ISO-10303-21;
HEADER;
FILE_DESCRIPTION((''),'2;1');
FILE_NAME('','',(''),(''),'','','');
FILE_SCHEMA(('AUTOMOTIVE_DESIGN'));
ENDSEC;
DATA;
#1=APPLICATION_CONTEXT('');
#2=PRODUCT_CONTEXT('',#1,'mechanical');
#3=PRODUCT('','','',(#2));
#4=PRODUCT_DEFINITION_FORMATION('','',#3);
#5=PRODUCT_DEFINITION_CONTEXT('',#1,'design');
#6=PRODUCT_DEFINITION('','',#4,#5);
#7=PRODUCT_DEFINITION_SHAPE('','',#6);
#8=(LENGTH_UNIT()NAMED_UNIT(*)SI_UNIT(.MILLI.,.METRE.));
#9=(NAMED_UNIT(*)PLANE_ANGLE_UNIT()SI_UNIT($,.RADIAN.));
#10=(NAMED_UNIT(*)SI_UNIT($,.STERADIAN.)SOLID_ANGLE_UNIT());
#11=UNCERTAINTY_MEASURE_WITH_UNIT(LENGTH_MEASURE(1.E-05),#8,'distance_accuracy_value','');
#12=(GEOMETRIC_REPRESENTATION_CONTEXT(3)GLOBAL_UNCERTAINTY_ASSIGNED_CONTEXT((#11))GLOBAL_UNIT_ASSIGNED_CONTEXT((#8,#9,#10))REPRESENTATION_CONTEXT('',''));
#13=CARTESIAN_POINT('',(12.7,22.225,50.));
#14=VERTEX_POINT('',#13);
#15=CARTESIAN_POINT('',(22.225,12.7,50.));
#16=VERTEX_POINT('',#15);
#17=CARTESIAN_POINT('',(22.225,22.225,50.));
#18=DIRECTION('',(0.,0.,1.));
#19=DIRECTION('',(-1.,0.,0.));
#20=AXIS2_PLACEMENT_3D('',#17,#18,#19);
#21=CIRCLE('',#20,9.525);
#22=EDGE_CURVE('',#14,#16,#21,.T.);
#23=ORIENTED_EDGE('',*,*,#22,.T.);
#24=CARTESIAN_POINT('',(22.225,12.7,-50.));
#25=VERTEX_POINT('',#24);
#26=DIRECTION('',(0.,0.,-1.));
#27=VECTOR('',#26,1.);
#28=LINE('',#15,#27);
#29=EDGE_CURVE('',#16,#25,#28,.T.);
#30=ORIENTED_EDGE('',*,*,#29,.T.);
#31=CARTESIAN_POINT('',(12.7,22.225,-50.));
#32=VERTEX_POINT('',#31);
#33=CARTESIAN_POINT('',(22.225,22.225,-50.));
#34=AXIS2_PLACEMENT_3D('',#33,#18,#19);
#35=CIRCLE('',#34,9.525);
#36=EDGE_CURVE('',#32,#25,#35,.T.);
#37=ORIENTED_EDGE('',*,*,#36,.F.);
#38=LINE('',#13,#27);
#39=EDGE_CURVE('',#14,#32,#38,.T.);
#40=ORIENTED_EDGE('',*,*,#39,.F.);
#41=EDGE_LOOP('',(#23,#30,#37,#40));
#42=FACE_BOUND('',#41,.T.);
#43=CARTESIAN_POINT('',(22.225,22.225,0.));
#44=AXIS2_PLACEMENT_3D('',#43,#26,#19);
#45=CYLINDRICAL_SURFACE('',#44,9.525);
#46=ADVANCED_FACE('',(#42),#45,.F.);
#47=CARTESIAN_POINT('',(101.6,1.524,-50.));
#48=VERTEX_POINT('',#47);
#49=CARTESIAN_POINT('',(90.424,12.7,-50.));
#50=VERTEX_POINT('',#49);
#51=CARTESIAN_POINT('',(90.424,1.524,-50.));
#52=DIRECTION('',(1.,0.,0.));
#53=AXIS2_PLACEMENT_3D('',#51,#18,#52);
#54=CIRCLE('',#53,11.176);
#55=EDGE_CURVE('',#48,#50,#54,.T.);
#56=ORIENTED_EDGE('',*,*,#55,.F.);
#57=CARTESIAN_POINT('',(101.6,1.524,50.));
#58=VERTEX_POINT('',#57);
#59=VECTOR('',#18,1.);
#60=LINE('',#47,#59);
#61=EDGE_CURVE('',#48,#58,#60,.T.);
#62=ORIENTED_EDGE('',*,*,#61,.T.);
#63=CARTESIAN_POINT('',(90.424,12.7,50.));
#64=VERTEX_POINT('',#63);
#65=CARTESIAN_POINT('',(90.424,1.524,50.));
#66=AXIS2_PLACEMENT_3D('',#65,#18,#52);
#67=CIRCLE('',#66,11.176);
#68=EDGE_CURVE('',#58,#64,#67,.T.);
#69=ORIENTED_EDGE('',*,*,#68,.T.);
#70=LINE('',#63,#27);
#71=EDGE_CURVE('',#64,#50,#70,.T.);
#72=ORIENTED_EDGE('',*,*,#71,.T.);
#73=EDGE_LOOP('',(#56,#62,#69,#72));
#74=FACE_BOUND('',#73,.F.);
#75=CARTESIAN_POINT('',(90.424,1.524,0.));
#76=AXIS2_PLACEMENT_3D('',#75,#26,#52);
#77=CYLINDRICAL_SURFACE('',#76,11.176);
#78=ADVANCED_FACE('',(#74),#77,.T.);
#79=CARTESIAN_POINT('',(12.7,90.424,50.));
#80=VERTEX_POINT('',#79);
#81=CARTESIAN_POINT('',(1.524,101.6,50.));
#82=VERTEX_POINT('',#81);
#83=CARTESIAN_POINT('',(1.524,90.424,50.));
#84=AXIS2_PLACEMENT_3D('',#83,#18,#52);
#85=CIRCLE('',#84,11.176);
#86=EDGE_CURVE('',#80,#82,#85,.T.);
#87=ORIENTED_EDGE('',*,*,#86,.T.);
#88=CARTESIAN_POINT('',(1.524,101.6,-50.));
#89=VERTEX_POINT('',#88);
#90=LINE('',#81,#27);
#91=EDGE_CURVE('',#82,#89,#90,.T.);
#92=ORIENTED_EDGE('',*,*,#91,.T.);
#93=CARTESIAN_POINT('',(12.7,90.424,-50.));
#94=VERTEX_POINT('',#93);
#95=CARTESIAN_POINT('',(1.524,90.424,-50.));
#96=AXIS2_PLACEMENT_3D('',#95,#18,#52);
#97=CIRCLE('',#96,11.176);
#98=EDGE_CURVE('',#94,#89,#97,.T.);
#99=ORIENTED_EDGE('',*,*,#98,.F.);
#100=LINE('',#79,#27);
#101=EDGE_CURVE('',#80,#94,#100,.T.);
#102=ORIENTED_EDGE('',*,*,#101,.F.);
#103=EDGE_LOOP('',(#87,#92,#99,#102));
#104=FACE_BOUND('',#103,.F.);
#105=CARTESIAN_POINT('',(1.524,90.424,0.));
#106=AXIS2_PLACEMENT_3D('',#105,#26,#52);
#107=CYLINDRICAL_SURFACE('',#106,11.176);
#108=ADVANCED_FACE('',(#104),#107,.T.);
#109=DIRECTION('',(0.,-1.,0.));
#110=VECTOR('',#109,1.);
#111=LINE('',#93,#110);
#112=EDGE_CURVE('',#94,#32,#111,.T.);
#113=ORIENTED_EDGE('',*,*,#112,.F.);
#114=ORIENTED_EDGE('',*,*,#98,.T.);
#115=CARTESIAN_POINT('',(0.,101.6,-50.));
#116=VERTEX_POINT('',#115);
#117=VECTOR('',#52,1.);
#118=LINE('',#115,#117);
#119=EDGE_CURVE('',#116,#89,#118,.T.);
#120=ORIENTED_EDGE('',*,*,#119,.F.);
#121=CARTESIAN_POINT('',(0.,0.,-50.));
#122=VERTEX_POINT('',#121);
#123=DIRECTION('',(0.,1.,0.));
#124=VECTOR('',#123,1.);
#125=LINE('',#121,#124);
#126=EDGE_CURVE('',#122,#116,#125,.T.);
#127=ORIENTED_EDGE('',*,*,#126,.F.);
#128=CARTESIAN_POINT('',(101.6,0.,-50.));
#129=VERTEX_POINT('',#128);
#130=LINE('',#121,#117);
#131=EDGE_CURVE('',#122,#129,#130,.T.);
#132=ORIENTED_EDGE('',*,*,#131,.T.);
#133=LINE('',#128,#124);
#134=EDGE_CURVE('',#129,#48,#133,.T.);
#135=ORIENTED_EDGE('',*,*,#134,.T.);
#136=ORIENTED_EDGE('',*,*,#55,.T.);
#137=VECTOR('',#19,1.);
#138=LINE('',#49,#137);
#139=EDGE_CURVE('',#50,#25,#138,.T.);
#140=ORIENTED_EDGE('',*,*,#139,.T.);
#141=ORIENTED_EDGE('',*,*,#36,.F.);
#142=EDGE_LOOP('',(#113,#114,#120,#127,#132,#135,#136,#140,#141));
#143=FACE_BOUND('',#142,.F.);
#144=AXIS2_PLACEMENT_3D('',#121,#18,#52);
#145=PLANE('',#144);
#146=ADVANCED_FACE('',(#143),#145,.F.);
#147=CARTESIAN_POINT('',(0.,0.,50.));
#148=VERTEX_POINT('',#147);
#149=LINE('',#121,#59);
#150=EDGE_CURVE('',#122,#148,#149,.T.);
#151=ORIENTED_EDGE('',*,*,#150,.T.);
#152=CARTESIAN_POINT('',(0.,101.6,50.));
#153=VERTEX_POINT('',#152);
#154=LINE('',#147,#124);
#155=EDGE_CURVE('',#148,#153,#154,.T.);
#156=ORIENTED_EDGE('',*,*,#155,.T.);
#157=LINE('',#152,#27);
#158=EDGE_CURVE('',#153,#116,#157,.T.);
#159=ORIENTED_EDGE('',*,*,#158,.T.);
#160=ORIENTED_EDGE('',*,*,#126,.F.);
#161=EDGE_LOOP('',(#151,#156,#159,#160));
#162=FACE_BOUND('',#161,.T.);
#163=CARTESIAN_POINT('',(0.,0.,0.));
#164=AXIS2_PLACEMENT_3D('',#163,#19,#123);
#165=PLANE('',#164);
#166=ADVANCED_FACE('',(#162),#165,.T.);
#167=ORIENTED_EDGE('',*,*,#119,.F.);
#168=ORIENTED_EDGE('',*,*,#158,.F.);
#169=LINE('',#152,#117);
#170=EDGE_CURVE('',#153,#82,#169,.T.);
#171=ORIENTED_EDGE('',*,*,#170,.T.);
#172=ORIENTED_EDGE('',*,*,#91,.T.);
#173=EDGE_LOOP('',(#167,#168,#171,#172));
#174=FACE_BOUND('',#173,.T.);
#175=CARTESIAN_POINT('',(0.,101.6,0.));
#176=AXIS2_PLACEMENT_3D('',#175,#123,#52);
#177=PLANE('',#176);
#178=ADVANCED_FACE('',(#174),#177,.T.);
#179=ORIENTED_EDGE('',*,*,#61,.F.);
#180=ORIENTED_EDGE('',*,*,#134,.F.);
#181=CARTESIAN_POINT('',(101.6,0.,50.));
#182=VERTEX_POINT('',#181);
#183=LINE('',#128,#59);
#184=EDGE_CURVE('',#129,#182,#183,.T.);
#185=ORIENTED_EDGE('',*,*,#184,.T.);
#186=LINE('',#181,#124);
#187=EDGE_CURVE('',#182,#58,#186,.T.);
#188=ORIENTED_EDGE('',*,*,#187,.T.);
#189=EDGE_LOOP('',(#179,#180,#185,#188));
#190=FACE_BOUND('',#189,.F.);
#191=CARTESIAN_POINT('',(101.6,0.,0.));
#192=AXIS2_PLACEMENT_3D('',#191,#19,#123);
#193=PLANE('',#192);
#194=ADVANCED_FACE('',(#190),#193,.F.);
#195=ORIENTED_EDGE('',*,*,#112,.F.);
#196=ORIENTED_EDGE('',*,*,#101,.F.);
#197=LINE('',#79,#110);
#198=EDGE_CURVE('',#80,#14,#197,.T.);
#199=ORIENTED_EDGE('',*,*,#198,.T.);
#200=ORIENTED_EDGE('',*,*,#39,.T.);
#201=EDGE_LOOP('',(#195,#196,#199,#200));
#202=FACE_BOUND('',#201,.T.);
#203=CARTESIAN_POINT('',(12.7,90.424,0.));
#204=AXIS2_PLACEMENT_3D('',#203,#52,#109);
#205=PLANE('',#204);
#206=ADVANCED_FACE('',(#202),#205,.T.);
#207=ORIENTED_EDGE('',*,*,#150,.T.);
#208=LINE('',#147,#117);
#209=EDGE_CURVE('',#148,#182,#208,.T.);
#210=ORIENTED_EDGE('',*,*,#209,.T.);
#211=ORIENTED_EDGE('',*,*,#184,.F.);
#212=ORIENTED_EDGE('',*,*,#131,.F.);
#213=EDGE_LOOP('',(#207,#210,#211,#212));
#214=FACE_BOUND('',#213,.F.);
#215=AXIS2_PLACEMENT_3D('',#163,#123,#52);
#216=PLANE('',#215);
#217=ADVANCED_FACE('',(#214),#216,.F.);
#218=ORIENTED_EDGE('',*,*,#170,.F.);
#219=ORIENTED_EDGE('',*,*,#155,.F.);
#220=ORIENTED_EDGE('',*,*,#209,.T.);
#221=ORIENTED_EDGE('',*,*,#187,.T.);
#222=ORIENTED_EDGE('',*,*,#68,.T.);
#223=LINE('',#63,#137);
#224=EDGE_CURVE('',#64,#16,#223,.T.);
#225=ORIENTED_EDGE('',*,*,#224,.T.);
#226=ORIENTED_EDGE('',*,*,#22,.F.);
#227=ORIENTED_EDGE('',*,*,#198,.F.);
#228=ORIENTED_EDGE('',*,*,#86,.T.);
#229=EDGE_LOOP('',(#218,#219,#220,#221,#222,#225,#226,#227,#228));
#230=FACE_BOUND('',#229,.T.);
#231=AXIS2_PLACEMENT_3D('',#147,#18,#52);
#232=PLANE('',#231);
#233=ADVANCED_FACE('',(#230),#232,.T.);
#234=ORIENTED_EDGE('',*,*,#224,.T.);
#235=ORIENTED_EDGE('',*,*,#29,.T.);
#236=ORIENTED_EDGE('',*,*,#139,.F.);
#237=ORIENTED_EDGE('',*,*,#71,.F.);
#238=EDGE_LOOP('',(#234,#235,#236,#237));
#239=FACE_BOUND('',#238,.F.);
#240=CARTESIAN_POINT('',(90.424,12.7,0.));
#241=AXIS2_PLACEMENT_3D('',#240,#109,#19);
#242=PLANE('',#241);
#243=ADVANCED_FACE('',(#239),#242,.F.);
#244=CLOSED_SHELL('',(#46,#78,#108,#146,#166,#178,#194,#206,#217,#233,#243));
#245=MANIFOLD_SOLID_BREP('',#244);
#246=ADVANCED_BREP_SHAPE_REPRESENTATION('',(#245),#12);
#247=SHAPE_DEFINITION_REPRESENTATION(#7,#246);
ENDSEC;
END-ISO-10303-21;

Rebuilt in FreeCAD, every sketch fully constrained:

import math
import FreeCAD as App
import Part
import Sketcher

V = App.Vector
Q = App.Units.Quantity

doc = App.newDocument("Part")
body = doc.addObject("PartDesign::Body", "Body")

# Sketch on XY plane
sketch1 = body.newObject("Sketcher::SketchObject", "Sketch")
sketch1.AttachmentSupport = (doc.getObject("XY_Plane"), [""])
sketch1.MapMode = "FlatFace"
sketch1.addGeometry([
    Part.LineSegment(V(0, 101.6, 0), V(0, 0, 0)),  # 0
    Part.LineSegment(V(0, 0, 0), V(101.6, 0, 0)),  # 1
    Part.LineSegment(V(101.6, 0, 0), V(101.6, 1.524, 0)),  # 2
    Part.ArcOfCircle(Part.Circle(V(90.424, 1.524, 0), V(0, 0, 1), 11.176), math.radians(0), math.radians(90)),  # 3
    Part.LineSegment(V(90.424, 12.7, 0), V(22.225, 12.7, 0)),  # 4
    Part.ArcOfCircle(Part.Circle(V(22.225, 22.225, 0), V(0, 0, 1), 9.525), math.radians(180), math.radians(270)),  # 5
    Part.LineSegment(V(12.7, 22.225, 0), V(12.7, 90.424, 0)),  # 6
    Part.ArcOfCircle(Part.Circle(V(1.524, 90.424, 0), V(0, 0, 1), 11.176), math.radians(0), math.radians(90)),  # 7
    Part.LineSegment(V(1.524, 101.6, 0), V(0, 101.6, 0)),  # 8
], False)
sketch1.addConstraint([
    Sketcher.Constraint("Coincident", 0, 2, 1, 1),
    Sketcher.Constraint("Coincident", 1, 2, 2, 1),
    Sketcher.Constraint("Tangent", 2, 2, 3, 1),
    Sketcher.Constraint("Tangent", 3, 2, 4, 1),
    Sketcher.Constraint("Tangent", 4, 2, 5, 2),
    Sketcher.Constraint("Tangent", 5, 1, 6, 1),
    Sketcher.Constraint("Tangent", 6, 2, 7, 1),
    Sketcher.Constraint("Tangent", 7, 2, 8, 1),
    Sketcher.Constraint("Coincident", 8, 2, 0, 1),
    Sketcher.Constraint("Vertical", 0),
    Sketcher.Constraint("Horizontal", 1),
    Sketcher.Constraint("Vertical", 2),
    Sketcher.Constraint("Horizontal", 4),
    Sketcher.Constraint("Vertical", 6),
    Sketcher.Constraint("Horizontal", 8),
    Sketcher.Constraint("Coincident", 0, 2, -1, 1),
    Sketcher.Constraint("Equal", 3, 7),
    Sketcher.Constraint("Equal", 1, 0),
    Sketcher.Constraint("Equal", 8, 2),
    Sketcher.Constraint("DistanceX", 1, 1, 1, 2, Q("4 in")),
    Sketcher.Constraint("Radius", 3, Q("0.44 in")),
    Sketcher.Constraint("Radius", 5, Q("0.375 in")),
    Sketcher.Constraint("DistanceY", -1, 1, 3, 2, Q("0.5 in")),
])
pad1 = body.newObject("PartDesign::Pad", "Pad")
pad1.Profile = sketch1
pad1.Length = Q("3.9370079 in")
pad1.Midplane = True

doc.recompute()
